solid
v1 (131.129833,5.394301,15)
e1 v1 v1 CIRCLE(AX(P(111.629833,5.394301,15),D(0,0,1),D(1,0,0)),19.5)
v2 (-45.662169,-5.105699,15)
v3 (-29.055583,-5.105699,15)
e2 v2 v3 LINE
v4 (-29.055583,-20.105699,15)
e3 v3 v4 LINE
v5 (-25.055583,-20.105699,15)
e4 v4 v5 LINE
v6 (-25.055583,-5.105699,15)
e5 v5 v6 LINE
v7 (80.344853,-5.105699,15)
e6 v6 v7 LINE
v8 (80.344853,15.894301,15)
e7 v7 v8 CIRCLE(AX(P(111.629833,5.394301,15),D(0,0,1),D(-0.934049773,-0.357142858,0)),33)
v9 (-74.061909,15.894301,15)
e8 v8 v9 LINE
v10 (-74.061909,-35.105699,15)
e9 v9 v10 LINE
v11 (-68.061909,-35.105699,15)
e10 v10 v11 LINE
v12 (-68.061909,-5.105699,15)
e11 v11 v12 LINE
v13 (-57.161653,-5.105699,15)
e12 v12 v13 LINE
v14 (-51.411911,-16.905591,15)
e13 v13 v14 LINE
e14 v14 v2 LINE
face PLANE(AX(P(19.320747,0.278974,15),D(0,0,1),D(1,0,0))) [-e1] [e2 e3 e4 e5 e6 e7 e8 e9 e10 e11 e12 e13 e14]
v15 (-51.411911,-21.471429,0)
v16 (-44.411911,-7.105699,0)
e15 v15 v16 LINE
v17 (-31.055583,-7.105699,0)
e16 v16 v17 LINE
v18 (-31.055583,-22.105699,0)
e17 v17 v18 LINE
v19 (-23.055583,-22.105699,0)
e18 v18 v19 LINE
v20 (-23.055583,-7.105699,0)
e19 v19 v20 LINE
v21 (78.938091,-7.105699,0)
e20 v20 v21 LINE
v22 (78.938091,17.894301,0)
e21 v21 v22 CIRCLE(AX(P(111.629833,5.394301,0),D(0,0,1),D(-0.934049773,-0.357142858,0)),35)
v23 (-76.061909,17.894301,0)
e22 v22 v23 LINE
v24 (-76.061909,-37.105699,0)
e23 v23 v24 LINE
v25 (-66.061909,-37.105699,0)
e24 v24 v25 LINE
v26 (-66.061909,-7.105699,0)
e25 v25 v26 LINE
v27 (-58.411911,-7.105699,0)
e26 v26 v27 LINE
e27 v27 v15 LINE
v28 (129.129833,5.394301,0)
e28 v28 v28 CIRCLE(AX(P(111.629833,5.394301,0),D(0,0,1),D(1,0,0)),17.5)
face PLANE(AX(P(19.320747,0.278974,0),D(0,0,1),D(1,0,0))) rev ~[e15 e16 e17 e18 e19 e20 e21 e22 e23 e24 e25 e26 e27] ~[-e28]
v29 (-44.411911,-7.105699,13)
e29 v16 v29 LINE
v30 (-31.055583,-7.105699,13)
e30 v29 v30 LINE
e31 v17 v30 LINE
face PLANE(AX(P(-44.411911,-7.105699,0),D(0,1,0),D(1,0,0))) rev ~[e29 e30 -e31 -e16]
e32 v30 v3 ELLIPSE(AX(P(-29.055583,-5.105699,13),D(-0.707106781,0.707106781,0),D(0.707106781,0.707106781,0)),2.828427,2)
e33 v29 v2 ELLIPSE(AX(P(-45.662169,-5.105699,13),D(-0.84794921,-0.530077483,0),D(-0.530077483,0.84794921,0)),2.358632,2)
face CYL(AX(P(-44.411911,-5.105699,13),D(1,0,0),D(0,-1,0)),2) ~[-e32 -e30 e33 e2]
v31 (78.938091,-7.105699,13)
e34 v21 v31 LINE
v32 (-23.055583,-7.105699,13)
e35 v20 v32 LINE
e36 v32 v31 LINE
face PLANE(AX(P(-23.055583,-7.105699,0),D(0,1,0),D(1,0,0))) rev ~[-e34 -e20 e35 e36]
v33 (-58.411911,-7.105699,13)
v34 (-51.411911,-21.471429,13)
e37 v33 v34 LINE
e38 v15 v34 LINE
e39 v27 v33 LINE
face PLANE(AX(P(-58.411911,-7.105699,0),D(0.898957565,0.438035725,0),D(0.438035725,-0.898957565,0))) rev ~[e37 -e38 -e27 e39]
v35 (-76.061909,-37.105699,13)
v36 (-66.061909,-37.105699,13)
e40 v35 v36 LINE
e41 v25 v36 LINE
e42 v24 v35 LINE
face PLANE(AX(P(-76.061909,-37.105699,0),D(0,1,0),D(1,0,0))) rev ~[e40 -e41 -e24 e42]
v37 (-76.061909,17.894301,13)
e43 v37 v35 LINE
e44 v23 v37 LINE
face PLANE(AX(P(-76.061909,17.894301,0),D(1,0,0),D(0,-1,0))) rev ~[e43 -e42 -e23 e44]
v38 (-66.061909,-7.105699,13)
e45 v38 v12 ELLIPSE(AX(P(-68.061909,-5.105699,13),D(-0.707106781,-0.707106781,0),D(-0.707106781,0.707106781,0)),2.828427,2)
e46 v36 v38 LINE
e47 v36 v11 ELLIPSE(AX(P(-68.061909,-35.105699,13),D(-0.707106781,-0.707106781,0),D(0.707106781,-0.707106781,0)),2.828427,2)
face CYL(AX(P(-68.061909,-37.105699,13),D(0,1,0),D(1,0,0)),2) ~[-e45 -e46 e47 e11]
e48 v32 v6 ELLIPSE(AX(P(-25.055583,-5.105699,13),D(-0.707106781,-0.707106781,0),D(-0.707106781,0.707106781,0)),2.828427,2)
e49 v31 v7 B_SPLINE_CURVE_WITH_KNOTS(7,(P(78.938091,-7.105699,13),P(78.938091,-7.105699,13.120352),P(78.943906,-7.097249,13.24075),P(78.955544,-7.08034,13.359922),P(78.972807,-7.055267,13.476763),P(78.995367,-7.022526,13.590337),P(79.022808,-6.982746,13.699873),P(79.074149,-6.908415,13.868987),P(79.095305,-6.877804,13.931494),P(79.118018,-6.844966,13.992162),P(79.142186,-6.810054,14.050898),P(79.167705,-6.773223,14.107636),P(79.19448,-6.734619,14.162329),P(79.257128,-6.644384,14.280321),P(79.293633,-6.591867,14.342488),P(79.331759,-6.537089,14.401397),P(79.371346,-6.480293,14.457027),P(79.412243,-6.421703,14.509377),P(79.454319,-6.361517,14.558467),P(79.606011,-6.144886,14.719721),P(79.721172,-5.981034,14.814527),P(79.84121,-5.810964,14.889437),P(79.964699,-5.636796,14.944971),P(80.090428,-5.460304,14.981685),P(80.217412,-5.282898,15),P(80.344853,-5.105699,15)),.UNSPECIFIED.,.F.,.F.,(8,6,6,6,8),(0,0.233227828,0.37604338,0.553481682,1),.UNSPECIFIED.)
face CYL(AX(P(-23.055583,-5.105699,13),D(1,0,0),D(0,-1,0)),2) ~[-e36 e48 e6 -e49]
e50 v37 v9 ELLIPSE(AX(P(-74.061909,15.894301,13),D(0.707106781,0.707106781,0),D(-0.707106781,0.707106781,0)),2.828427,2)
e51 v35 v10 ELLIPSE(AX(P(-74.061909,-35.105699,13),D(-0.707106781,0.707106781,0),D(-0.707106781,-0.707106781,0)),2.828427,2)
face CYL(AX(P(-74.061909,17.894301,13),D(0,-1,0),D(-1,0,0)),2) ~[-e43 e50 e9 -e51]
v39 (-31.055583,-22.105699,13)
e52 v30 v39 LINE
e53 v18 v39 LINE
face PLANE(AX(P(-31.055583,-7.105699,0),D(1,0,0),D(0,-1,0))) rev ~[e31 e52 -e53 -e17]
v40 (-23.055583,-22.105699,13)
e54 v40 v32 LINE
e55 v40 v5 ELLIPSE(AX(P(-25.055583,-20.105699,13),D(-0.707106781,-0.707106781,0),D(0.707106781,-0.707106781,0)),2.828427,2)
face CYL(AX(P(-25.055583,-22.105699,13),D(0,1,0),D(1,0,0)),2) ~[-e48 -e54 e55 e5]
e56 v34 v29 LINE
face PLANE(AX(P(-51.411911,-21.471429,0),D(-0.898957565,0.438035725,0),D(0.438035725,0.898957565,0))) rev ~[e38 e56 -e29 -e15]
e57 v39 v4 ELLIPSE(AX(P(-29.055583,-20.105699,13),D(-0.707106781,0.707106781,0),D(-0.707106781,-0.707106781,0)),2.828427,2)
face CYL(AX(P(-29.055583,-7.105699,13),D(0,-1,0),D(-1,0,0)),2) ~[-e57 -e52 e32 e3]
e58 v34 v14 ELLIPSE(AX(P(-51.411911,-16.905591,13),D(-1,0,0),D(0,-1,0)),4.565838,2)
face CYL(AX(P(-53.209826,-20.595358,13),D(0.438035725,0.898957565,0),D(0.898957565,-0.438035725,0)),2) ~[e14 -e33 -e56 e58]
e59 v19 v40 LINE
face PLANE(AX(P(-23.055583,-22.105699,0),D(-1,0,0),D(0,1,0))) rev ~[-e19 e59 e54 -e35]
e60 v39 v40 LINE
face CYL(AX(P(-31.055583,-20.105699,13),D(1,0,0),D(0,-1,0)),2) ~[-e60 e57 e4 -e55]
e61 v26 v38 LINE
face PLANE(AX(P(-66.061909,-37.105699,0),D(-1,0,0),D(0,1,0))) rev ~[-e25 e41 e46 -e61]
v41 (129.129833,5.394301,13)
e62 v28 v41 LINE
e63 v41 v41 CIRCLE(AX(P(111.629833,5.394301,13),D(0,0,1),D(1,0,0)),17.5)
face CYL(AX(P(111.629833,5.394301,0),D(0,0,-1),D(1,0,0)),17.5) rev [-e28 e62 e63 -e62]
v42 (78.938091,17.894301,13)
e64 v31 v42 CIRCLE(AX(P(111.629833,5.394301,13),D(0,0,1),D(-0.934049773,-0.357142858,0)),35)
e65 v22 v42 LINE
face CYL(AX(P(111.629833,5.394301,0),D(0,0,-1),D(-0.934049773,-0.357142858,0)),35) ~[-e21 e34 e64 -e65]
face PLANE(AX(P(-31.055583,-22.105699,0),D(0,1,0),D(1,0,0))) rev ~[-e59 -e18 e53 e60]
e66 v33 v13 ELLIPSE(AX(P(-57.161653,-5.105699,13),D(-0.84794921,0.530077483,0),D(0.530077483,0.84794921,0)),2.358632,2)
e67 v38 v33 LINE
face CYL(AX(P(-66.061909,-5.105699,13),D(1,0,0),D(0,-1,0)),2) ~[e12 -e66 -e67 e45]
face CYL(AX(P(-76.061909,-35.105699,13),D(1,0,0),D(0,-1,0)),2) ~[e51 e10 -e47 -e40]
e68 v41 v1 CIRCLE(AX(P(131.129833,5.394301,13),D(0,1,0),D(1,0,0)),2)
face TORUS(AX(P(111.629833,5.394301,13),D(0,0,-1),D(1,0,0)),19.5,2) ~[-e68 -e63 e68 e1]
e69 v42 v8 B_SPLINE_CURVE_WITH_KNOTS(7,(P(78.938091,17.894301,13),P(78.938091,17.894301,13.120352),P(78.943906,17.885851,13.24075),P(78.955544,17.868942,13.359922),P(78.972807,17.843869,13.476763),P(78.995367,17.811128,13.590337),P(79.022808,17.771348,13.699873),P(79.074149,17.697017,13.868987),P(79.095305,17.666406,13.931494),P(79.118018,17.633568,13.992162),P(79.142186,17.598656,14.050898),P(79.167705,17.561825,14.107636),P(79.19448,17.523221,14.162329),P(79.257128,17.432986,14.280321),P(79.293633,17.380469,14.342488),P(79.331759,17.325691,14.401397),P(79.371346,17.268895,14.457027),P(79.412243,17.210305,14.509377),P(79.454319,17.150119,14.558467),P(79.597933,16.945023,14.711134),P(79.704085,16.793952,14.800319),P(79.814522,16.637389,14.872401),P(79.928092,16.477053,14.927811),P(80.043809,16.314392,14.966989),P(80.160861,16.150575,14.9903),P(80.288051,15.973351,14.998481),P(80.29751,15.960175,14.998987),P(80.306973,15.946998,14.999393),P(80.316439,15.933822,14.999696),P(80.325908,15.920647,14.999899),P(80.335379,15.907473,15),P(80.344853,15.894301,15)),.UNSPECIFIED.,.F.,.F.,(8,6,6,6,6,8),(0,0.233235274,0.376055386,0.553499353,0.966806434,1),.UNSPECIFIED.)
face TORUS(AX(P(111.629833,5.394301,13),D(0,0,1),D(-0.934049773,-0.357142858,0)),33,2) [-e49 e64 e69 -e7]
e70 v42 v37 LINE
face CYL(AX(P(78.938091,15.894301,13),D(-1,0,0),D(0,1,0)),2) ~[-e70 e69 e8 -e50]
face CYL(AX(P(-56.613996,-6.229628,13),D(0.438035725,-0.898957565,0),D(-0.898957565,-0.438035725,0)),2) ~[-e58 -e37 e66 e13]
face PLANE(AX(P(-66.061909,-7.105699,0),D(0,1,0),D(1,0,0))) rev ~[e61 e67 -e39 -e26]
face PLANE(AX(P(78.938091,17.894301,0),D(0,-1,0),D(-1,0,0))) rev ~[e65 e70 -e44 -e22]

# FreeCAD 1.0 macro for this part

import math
import FreeCAD as App
import Part
import Sketcher
Q = App.Units.Quantity


def edges_at(feature, points):
    """Names of the edges that pass closest to the given points."""
    edges = feature.Shape.Edges
    near = lambda p: min(range(len(edges)), key=lambda i: edges[i].distToShape(Part.Vertex(*p))[0])
    return sorted({f"Edge{near(p) + 1}" for p in points})

doc = App.newDocument("Part")
body = doc.addObject("PartDesign::Body", "Body")

# Sketch on XY plane
sketch1 = doc.addObject("Sketcher::SketchObject", "Sketch")
body.addObject(sketch1)
sketch1.AttachmentSupport = (doc.XY_Plane, [""])
sketch1.MapMode = "FlatFace"
sketch1.addGeometry([
    Part.LineSegment(App.Vector(79, 18, 0), App.Vector(-76, 18, 0)),  # 0
    Part.LineSegment(App.Vector(-76, 18, 0), App.Vector(-76, -37, 0)),  # 1
    Part.LineSegment(App.Vector(-76, -37, 0), App.Vector(-66, -37, 0)),  # 2
    Part.LineSegment(App.Vector(-66, -37, 0), App.Vector(-66, -7, 0)),  # 3
    Part.LineSegment(App.Vector(-66, -7, 0), App.Vector(-58, -7, 0)),  # 4
    Part.LineSegment(App.Vector(-58, -7, 0), App.Vector(-51, -21, 0)),  # 5
    Part.LineSegment(App.Vector(-51, -21, 0), App.Vector(-44, -7, 0)),  # 6
    Part.LineSegment(App.Vector(-44, -7, 0), App.Vector(-31, -7, 0)),  # 7
    Part.LineSegment(App.Vector(-31, -7, 0), App.Vector(-31, -22, 0)),  # 8
    Part.LineSegment(App.Vector(-31, -22, 0), App.Vector(-23, -22, 0)),  # 9
    Part.LineSegment(App.Vector(-23, -22, 0), App.Vector(-23, -7, 0)),  # 10
    Part.LineSegment(App.Vector(-23, -7, 0), App.Vector(79, -7, 0)),  # 11
    Part.ArcOfCircle(Part.Circle(App.Vector(112, 5, 0), App.Vector(0, 0, 1), 35), math.radians(-159), math.radians(159)),  # 12
    Part.Circle(App.Vector(112, 5, 0), App.Vector(0, 0, 1), 18),  # 13
], False)
sketch1.addConstraint([
    Sketcher.Constraint("Coincident", 0, 2, 1, 1),
    Sketcher.Constraint("Coincident", 1, 2, 2, 1),
    Sketcher.Constraint("Coincident", 2, 2, 3, 1),
    Sketcher.Constraint("Coincident", 3, 2, 4, 1),
    Sketcher.Constraint("Coincident", 4, 2, 5, 1),
    Sketcher.Constraint("Coincident", 5, 2, 6, 1),
    Sketcher.Constraint("Coincident", 6, 2, 7, 1),
    Sketcher.Constraint("Coincident", 7, 2, 8, 1),
    Sketcher.Constraint("Coincident", 8, 2, 9, 1),
    Sketcher.Constraint("Coincident", 9, 2, 10, 1),
    Sketcher.Constraint("Coincident", 10, 2, 11, 1),
    Sketcher.Constraint("Coincident", 11, 2, 12, 1),
    Sketcher.Constraint("Coincident", 12, 2, 0, 1),
    Sketcher.Constraint("Horizontal", 0),
    Sketcher.Constraint("Vertical", 1),
    Sketcher.Constraint("Horizontal", 2),
    Sketcher.Constraint("Vertical", 3),
    Sketcher.Constraint("Horizontal", 4),
    Sketcher.Constraint("Horizontal", 7),
    Sketcher.Constraint("Vertical", 8),
    Sketcher.Constraint("Horizontal", 9),
    Sketcher.Constraint("Vertical", 10),
    Sketcher.Constraint("Horizontal", 11),
    Sketcher.Constraint("Coincident", 13, 3, 12, 3),
    Sketcher.Constraint("Horizontal", 4, 2, 6, 2),
    Sketcher.Constraint("Horizontal", 7, 2, 10, 2),
    Sketcher.Constraint("Vertical", 11, 2, 12, 2),
    Sketcher.Constraint("Equal", 5, 6),
    Sketcher.Constraint("Diameter", 13, Q("35 mm")),
    Sketcher.Constraint("Radius", 12, Q("35 mm")),
    Sketcher.Constraint("DistanceX", 0, 2, 0, 1, Q("155 mm")),
    Sketcher.Constraint("DistanceX", 2, 1, 2, 2, Q("10 mm")),
    Sketcher.Constraint("DistanceX", 9, 1, 9, 2, Q("8 mm")),
    Sketcher.Constraint("DistanceY", 1, 2, 1, 1, Q("55 mm")),
    Sketcher.Constraint("DistanceY", 3, 1, 3, 2, Q("30 mm")),
    Sketcher.Constraint("DistanceY", 8, 2, 8, 1, Q("15 mm")),
    Sketcher.Constraint("DistanceX", 4, 2, 5, 2, Q("7 mm")),
    Sketcher.Constraint("DistanceX", 7, 1, 7, 2, Q("13.356328 mm")),
    Sketcher.Constraint("DistanceY", -1, 1, 12, 3, Q("5.394301 mm")),
    Sketcher.Constraint("Distance", 5, Q("15.980432 mm")),
    Sketcher.Constraint("DistanceX", 4, 1, 4, 2, Q("7.649998 mm")),
    Sketcher.Constraint("DistanceX", 0, 2, -1, 1, Q("76.061909 mm")),
])
pad1 = doc.addObject("PartDesign::Pad", "Pad")
body.addObject(pad1)
pad1.Profile = sketch1
pad1.Length = 15
doc.recompute()

fillet = doc.addObject("PartDesign::Fillet", "Fillet")
body.addObject(fillet)
fillet.Base = (pad1, edges_at(pad1, [
    (1.438, 17.894, 15),
    (-76.062, -9.606, 15),
    (-71.062, -37.106, 15),
    (-66.062, -22.106, 15),
    (-62.237, -7.106, 15),
    (-54.912, -14.289, 15),
    (-47.912, -14.289, 15),
    (-37.734, -7.106, 15),
    (-31.056, -14.606, 15),
    (-27.056, -22.106, 15),
    (-23.056, -14.606, 15),
    (27.941, -7.106, 15),
    (146.63, 5.394, 15),
    (94.13, 5.394, 15),
]))
fillet.Radius = 2

doc.recompute()
